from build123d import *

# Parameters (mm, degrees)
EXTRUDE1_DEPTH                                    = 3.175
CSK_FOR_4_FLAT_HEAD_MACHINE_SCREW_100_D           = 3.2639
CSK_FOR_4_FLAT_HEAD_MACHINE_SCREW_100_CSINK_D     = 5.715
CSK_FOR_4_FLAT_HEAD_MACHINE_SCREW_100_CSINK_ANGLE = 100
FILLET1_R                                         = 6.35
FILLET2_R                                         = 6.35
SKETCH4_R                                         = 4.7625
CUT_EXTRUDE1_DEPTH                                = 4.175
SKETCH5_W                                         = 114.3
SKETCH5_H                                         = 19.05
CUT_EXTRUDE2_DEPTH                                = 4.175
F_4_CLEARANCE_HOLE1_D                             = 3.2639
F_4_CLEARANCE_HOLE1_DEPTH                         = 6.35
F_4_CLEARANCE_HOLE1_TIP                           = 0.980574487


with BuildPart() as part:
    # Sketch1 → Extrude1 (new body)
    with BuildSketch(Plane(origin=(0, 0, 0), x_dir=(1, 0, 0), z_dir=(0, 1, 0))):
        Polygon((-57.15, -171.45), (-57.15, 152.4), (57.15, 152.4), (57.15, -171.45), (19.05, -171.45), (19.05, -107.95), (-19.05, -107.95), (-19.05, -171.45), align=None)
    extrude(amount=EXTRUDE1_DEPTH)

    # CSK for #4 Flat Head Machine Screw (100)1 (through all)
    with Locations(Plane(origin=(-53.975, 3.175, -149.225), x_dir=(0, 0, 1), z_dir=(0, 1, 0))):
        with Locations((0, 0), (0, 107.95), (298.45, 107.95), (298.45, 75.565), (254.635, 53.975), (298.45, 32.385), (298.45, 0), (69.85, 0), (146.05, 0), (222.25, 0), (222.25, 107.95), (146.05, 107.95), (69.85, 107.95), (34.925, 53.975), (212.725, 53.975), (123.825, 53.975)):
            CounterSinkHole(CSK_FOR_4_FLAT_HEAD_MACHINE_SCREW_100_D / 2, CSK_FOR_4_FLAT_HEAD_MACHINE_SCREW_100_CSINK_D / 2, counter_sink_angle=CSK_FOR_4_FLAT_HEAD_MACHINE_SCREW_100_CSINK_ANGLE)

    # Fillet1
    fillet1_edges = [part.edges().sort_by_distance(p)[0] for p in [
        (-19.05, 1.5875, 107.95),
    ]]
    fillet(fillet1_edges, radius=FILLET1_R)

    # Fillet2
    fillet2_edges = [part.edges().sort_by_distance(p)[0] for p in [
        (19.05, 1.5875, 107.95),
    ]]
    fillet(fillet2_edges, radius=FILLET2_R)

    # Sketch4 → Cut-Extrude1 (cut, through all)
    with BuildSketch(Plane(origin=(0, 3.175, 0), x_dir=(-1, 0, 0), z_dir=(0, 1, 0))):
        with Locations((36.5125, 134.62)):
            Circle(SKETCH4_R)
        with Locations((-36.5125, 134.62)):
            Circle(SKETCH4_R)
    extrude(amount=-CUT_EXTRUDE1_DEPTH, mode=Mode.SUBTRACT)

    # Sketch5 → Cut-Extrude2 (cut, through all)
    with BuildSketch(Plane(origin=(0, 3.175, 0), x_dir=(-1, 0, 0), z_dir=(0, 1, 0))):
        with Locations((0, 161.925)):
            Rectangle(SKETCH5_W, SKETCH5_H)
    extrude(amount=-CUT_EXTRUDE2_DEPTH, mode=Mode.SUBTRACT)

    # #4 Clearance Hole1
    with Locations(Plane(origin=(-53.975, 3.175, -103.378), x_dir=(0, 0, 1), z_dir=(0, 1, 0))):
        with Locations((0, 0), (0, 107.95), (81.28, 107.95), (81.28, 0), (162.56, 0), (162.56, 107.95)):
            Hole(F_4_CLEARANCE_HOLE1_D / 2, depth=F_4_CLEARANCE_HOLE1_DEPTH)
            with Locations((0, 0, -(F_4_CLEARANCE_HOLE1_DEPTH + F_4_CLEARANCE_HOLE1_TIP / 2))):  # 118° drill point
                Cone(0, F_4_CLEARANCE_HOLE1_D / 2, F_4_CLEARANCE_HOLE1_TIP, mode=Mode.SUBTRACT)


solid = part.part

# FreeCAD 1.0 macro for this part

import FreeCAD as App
import Part
import Sketcher

V = App.Vector
Q = App.Units.Quantity


def edges_at(feature, points):
    """Names of the edges that pass closest to the given points."""
    edges = feature.Shape.Edges
    near = lambda p: min(range(len(edges)), key=lambda i: edges[i].distToShape(Part.Vertex(*p))[0])
    return sorted({f"Edge{near(p) + 1}" for p in points})

doc = App.newDocument("Part")
body = doc.addObject("PartDesign::Body", "Body")

sketch1 = body.newObject("Sketcher::SketchObject", "Sketch")
sketch1.AttachmentSupport = (doc.getObject("XZ_Plane"), [""])
sketch1.MapMode = "FlatFace"
sketch1.addGeometry([
    Part.LineSegment(V(-57, -152, 0), V(-57, 171, 0)),
    Part.LineSegment(V(-57, 171, 0), V(-19, 171, 0)),
    Part.LineSegment(V(-19, 171, 0), V(-19, 108, 0)),
    Part.LineSegment(V(-19, 108, 0), V(19, 108, 0)),
    Part.LineSegment(V(19, 108, 0), V(19, 171, 0)),
    Part.LineSegment(V(19, 171, 0), V(57, 171, 0)),
    Part.LineSegment(V(57, 171, 0), V(57, -152, 0)),
    Part.LineSegment(V(57, -152, 0), V(-57, -152, 0)),
], False)
sketch1.addConstraint([
    Sketcher.Constraint("Coincident", 0, 2, 1, 1),
    Sketcher.Constraint("Coincident", 1, 2, 2, 1),
    Sketcher.Constraint("Coincident", 2, 2, 3, 1),
    Sketcher.Constraint("Coincident", 3, 2, 4, 1),
    Sketcher.Constraint("Coincident", 4, 2, 5, 1),
    Sketcher.Constraint("Coincident", 5, 2, 6, 1),
    Sketcher.Constraint("Coincident", 6, 2, 7, 1),
    Sketcher.Constraint("Coincident", 7, 2, 0, 1),
    Sketcher.Constraint("Vertical", 0),
    Sketcher.Constraint("Horizontal", 1),
    Sketcher.Constraint("Vertical", 2),
    Sketcher.Constraint("Horizontal", 3),
    Sketcher.Constraint("Vertical", 4),
    Sketcher.Constraint("Horizontal", 5),
    Sketcher.Constraint("Vertical", 6),
    Sketcher.Constraint("Horizontal", 7),
    Sketcher.Constraint("Symmetric", 1, 2, 4, 2, -2),
    Sketcher.Constraint("Equal", 1, 3),
    Sketcher.Constraint("Equal", 3, 5),
    Sketcher.Constraint("DistanceX", 1, 1, 1, 2, Q("1.5 in")),
    Sketcher.Constraint("DistanceY", 2, 2, 2, 1, Q("2.5 in")),
    Sketcher.Constraint("DistanceY", 6, 2, -1, 1, Q("6 in")),
    Sketcher.Constraint("DistanceY", 0, 1, 0, 2, Q("12.75 in")),
])
pad1 = body.newObject("PartDesign::Pad", "Pad")
pad1.Profile = sketch1
pad1.Length = Q("0.125 in")
pad1.Reversed = True

sketch2 = body.newObject("Sketcher::SketchObject", "Sketch001")
sketch2.AttachmentSupport = (doc.getObject("XZ_Plane"), [""])
sketch2.MapMode = "FlatFace"
sketch2.AttachmentOffset = App.Placement(V(0, 0, -0.125 * 25.4), App.Rotation())
sketch2.addGeometry([
    Part.Circle(V(-54, -149.2, 0), V(0, 0, 1), 1.6),
    Part.Circle(V(54, -149.2, 0), V(0, 0, 1), 1.6),
    Part.Circle(V(54, 149.2, 0), V(0, 0, 1), 1.6),
    Part.Circle(V(21.6, 149.2, 0), V(0, 0, 1), 1.6),
    Part.Circle(V(0, 105.4, 0), V(0, 0, 1), 1.6),
    Part.Circle(V(-21.6, 149.2, 0), V(0, 0, 1), 1.6),
    Part.Circle(V(-54, 149.2, 0), V(0, 0, 1), 1.6),
    Part.Circle(V(-54, -79.4, 0), V(0, 0, 1), 1.6),
    Part.Circle(V(-54, -3.2, 0), V(0, 0, 1), 1.6),
    Part.Circle(V(-54, 73, 0), V(0, 0, 1), 1.6),
    Part.Circle(V(54, 73, 0), V(0, 0, 1), 1.6),
    Part.Circle(V(54, -3.2, 0), V(0, 0, 1), 1.6),
    Part.Circle(V(54, -79.4, 0), V(0, 0, 1), 1.6),
    Part.Circle(V(0, -114.3, 0), V(0, 0, 1), 1.6),
    Part.Circle(V(0, 63.5, 0), V(0, 0, 1), 1.6),
    Part.Circle(V(0, -25.4, 0), V(0, 0, 1), 1.6),
], False)
sketch2.addConstraint([
    Sketcher.Constraint("Equal", 0, 1),
    Sketcher.Constraint("Equal", 1, 2),
    Sketcher.Constraint("Equal", 2, 3),
    Sketcher.Constraint("Equal", 3, 4),
    Sketcher.Constraint("Equal", 4, 5),
    Sketcher.Constraint("Equal", 5, 6),
    Sketcher.Constraint("Equal", 6, 7),
    Sketcher.Constraint("Equal", 7, 8),
    Sketcher.Constraint("Equal", 8, 9),
    Sketcher.Constraint("Equal", 9, 10),
    Sketcher.Constraint("Equal", 10, 11),
    Sketcher.Constraint("Equal", 11, 12),
    Sketcher.Constraint("Equal", 12, 13),
    Sketcher.Constraint("Equal", 13, 14),
    Sketcher.Constraint("Equal", 14, 15),
    Sketcher.Constraint("Symmetric", 0, 3, 2, 3, -1, 1),
    Sketcher.Constraint("Symmetric", 1, 3, 6, 3, -1, 1),
    Sketcher.Constraint("Symmetric", 0, 3, 1, 3, -2),
    Sketcher.Constraint("Symmetric", 3, 3, 5, 3, -2),
    Sketcher.Constraint("Symmetric", 9, 3, 10, 3, -2),
    Sketcher.Constraint("Symmetric", 8, 3, 11, 3, -2),
    Sketcher.Constraint("Symmetric", 7, 3, 12, 3, -2),
    Sketcher.Constraint("PointOnObject", 4, 3, -2),
    Sketcher.Constraint("PointOnObject", 13, 3, -2),
    Sketcher.Constraint("PointOnObject", 14, 3, -2),
    Sketcher.Constraint("PointOnObject", 15, 3, -2),
    Sketcher.Constraint("Horizontal", 2, 3, 3, 3),
    Sketcher.Constraint("Vertical", 6, 3, 7, 3),
    Sketcher.Constraint("Vertical", 7, 3, 8, 3),
    Sketcher.Constraint("Vertical", 8, 3, 9, 3),
    Sketcher.Constraint("DistanceY", 15, 3, -1, 1, Q("1 in")),
    Sketcher.Constraint("DistanceY", 7, 3, 6, 3, Q("9 in")),
    Sketcher.Constraint("DistanceY", 7, 3, 8, 3, Q("3 in")),
    Sketcher.Constraint("DistanceY", 9, 3, 6, 3, Q("3 in")),
    Sketcher.Constraint("Diameter", 0, Q("0.1285 in")),
    Sketcher.Constraint("DistanceY", 13, 3, -1, 1, Q("4.5 in")),
    Sketcher.Constraint("DistanceY", -1, 1, 14, 3, Q("2.5 in")),
    Sketcher.Constraint("DistanceX", 5, 3, 3, 3, Q("1.7 in")),
    Sketcher.Constraint("DistanceY", -1, 1, 4, 3, Q("4.15 in")),
    Sketcher.Constraint("DistanceX", 0, 3, 1, 3, Q("4.25 in")),
    Sketcher.Constraint("DistanceY", 1, 3, 2, 3, Q("11.75 in")),
])
doc.recompute()
hole = body.newObject("PartDesign::Hole", "Hole")
hole.Profile = sketch2
hole.ThreadType = "None"
hole.Diameter = Q("0.1285 in")
hole.DepthType = "ThroughAll"
hole.HoleCutType = "Countersink"
hole.HoleCutDiameter = Q("0.225 in")
hole.HoleCutCountersinkAngle = 100
hole.Reversed = True
doc.recompute()

fillet = body.newObject("PartDesign::Fillet", "Fillet")
fillet.Base = (hole, edges_at(hole, [(-19.05, 1.587, 107.95)]))
fillet.Radius = Q("0.25 in")
doc.recompute()

fillet2 = body.newObject("PartDesign::Fillet", "Fillet001")
fillet2.Base = (fillet, edges_at(fillet, [(19.05, 1.587, 107.95)]))
fillet2.Radius = Q("0.25 in")

sketch3 = body.newObject("Sketcher::SketchObject", "Sketch002")
sketch3.AttachmentSupport = (doc.getObject("XZ_Plane"), [""])
sketch3.MapMode = "FlatFace"
sketch3.AttachmentOffset = App.Placement(V(0, 0, -0.125 * 25.4), App.Rotation())
sketch3.addGeometry([
    Part.Circle(V(-36.5, 134.6, 0), V(0, 0, 1), 4.8),
    Part.Circle(V(36.5, 134.6, 0), V(0, 0, 1), 4.8),
], False)
sketch3.addConstraint([
    Sketcher.Constraint("Equal", 0, 1),
    Sketcher.Constraint("Symmetric", 0, 3, 1, 3, -2),
    Sketcher.Constraint("Diameter", 0, Q("0.375 in")),
    Sketcher.Constraint("DistanceY", -1, 1, 0, 3, Q("5.3 in")),
    Sketcher.Constraint("DistanceX", 0, 3, -1, 1, Q("1.4375 in")),
])
pocket1 = body.newObject("PartDesign::Pocket", "Pocket")
pocket1.Profile = sketch3
pocket1.Type = "ThroughAll"
pocket1.Reversed = True

sketch4 = body.newObject("Sketcher::SketchObject", "Sketch003")
sketch4.AttachmentSupport = (doc.getObject("XZ_Plane"), [""])
sketch4.MapMode = "FlatFace"
sketch4.AttachmentOffset = App.Placement(V(0, 0, -0.125 * 25.4), App.Rotation())
sketch4.addGeometry([
    Part.LineSegment(V(57, 171, 0), V(57, 152, 0)),
    Part.LineSegment(V(57, 152, 0), V(-57, 152, 0)),
    Part.LineSegment(V(-57, 152, 0), V(-57, 171, 0)),
    Part.LineSegment(V(-57, 171, 0), V(57, 171, 0)),
], False)
sketch4.addConstraint([
    Sketcher.Constraint("Coincident", 0, 2, 1, 1),
    Sketcher.Constraint("Coincident", 1, 2, 2, 1),
    Sketcher.Constraint("Coincident", 2, 2, 3, 1),
    Sketcher.Constraint("Coincident", 3, 2, 0, 1),
    Sketcher.Constraint("Vertical", 0),
    Sketcher.Constraint("Horizontal", 1),
    Sketcher.Constraint("Vertical", 2),
    Sketcher.Constraint("Horizontal", 3),
    Sketcher.Constraint("DistanceX", 1, 2, 1, 1, Q("4.5 in")),
    Sketcher.Constraint("DistanceY", -1, 1, 0, 2, Q("6 in")),
    Sketcher.Constraint("DistanceY", 0, 2, 0, 1, Q("0.75 in")),
    Sketcher.Constraint("DistanceX", -1, 1, 0, 2, Q("2.25 in")),
])
pocket2 = body.newObject("PartDesign::Pocket", "Pocket001")
pocket2.Profile = sketch4
pocket2.Type = "ThroughAll"
pocket2.Reversed = True

sketch5 = body.newObject("Sketcher::SketchObject", "Sketch004")
sketch5.AttachmentSupport = (doc.getObject("XZ_Plane"), [""])
sketch5.MapMode = "FlatFace"
sketch5.AttachmentOffset = App.Placement(V(0, 0, -0.125 * 25.4), App.Rotation())
sketch5.addGeometry([
    Part.Circle(V(-54, -103.4, 0), V(0, 0, 1), 1.6),
    Part.Circle(V(54, -103.4, 0), V(0, 0, 1), 1.6),
    Part.Circle(V(54, -22.1, 0), V(0, 0, 1), 1.6),
    Part.Circle(V(-54, -22.1, 0), V(0, 0, 1), 1.6),
    Part.Circle(V(-54, 59.2, 0), V(0, 0, 1), 1.6),
    Part.Circle(V(54, 59.2, 0), V(0, 0, 1), 1.6),
], False)
sketch5.addConstraint([
    Sketcher.Constraint("Equal", 0, 1),
    Sketcher.Constraint("Equal", 1, 2),
    Sketcher.Constraint("Equal", 2, 3),
    Sketcher.Constraint("Equal", 3, 4),
    Sketcher.Constraint("Equal", 4, 5),
    Sketcher.Constraint("Symmetric", 0, 3, 1, 3, -2),
    Sketcher.Constraint("Symmetric", 2, 3, 3, 3, -2),
    Sketcher.Constraint("Symmetric", 4, 3, 5, 3, -2),
    Sketcher.Constraint("Vertical", 1, 3, 2, 3),
    Sketcher.Constraint("Vertical", 3, 3, 4, 3),
    Sketcher.Constraint("Diameter", 0, Q("0.1285 in")),
    Sketcher.Constraint("DistanceY", 1, 3, 2, 3, Q("3.2 in")),
    Sketcher.Constraint("DistanceY", 3, 3, 4, 3, Q("3.2 in")),
    Sketcher.Constraint("DistanceY", 0, 3, -1, 1, Q("4.07 in")),
    Sketcher.Constraint("DistanceX", 0, 3, 1, 3, Q("4.25 in")),
])
doc.recompute()
hole2 = body.newObject("PartDesign::Hole", "Hole001")
hole2.Profile = sketch5
hole2.ThreadType = "None"
hole2.Diameter = Q("0.1285 in")
hole2.DepthType = "Dimension"
hole2.Depth = Q("0.25 in")
hole2.DrillPoint = "Angled"
hole2.DrillPointAngle = 118
hole2.Reversed = True

doc.recompute()
